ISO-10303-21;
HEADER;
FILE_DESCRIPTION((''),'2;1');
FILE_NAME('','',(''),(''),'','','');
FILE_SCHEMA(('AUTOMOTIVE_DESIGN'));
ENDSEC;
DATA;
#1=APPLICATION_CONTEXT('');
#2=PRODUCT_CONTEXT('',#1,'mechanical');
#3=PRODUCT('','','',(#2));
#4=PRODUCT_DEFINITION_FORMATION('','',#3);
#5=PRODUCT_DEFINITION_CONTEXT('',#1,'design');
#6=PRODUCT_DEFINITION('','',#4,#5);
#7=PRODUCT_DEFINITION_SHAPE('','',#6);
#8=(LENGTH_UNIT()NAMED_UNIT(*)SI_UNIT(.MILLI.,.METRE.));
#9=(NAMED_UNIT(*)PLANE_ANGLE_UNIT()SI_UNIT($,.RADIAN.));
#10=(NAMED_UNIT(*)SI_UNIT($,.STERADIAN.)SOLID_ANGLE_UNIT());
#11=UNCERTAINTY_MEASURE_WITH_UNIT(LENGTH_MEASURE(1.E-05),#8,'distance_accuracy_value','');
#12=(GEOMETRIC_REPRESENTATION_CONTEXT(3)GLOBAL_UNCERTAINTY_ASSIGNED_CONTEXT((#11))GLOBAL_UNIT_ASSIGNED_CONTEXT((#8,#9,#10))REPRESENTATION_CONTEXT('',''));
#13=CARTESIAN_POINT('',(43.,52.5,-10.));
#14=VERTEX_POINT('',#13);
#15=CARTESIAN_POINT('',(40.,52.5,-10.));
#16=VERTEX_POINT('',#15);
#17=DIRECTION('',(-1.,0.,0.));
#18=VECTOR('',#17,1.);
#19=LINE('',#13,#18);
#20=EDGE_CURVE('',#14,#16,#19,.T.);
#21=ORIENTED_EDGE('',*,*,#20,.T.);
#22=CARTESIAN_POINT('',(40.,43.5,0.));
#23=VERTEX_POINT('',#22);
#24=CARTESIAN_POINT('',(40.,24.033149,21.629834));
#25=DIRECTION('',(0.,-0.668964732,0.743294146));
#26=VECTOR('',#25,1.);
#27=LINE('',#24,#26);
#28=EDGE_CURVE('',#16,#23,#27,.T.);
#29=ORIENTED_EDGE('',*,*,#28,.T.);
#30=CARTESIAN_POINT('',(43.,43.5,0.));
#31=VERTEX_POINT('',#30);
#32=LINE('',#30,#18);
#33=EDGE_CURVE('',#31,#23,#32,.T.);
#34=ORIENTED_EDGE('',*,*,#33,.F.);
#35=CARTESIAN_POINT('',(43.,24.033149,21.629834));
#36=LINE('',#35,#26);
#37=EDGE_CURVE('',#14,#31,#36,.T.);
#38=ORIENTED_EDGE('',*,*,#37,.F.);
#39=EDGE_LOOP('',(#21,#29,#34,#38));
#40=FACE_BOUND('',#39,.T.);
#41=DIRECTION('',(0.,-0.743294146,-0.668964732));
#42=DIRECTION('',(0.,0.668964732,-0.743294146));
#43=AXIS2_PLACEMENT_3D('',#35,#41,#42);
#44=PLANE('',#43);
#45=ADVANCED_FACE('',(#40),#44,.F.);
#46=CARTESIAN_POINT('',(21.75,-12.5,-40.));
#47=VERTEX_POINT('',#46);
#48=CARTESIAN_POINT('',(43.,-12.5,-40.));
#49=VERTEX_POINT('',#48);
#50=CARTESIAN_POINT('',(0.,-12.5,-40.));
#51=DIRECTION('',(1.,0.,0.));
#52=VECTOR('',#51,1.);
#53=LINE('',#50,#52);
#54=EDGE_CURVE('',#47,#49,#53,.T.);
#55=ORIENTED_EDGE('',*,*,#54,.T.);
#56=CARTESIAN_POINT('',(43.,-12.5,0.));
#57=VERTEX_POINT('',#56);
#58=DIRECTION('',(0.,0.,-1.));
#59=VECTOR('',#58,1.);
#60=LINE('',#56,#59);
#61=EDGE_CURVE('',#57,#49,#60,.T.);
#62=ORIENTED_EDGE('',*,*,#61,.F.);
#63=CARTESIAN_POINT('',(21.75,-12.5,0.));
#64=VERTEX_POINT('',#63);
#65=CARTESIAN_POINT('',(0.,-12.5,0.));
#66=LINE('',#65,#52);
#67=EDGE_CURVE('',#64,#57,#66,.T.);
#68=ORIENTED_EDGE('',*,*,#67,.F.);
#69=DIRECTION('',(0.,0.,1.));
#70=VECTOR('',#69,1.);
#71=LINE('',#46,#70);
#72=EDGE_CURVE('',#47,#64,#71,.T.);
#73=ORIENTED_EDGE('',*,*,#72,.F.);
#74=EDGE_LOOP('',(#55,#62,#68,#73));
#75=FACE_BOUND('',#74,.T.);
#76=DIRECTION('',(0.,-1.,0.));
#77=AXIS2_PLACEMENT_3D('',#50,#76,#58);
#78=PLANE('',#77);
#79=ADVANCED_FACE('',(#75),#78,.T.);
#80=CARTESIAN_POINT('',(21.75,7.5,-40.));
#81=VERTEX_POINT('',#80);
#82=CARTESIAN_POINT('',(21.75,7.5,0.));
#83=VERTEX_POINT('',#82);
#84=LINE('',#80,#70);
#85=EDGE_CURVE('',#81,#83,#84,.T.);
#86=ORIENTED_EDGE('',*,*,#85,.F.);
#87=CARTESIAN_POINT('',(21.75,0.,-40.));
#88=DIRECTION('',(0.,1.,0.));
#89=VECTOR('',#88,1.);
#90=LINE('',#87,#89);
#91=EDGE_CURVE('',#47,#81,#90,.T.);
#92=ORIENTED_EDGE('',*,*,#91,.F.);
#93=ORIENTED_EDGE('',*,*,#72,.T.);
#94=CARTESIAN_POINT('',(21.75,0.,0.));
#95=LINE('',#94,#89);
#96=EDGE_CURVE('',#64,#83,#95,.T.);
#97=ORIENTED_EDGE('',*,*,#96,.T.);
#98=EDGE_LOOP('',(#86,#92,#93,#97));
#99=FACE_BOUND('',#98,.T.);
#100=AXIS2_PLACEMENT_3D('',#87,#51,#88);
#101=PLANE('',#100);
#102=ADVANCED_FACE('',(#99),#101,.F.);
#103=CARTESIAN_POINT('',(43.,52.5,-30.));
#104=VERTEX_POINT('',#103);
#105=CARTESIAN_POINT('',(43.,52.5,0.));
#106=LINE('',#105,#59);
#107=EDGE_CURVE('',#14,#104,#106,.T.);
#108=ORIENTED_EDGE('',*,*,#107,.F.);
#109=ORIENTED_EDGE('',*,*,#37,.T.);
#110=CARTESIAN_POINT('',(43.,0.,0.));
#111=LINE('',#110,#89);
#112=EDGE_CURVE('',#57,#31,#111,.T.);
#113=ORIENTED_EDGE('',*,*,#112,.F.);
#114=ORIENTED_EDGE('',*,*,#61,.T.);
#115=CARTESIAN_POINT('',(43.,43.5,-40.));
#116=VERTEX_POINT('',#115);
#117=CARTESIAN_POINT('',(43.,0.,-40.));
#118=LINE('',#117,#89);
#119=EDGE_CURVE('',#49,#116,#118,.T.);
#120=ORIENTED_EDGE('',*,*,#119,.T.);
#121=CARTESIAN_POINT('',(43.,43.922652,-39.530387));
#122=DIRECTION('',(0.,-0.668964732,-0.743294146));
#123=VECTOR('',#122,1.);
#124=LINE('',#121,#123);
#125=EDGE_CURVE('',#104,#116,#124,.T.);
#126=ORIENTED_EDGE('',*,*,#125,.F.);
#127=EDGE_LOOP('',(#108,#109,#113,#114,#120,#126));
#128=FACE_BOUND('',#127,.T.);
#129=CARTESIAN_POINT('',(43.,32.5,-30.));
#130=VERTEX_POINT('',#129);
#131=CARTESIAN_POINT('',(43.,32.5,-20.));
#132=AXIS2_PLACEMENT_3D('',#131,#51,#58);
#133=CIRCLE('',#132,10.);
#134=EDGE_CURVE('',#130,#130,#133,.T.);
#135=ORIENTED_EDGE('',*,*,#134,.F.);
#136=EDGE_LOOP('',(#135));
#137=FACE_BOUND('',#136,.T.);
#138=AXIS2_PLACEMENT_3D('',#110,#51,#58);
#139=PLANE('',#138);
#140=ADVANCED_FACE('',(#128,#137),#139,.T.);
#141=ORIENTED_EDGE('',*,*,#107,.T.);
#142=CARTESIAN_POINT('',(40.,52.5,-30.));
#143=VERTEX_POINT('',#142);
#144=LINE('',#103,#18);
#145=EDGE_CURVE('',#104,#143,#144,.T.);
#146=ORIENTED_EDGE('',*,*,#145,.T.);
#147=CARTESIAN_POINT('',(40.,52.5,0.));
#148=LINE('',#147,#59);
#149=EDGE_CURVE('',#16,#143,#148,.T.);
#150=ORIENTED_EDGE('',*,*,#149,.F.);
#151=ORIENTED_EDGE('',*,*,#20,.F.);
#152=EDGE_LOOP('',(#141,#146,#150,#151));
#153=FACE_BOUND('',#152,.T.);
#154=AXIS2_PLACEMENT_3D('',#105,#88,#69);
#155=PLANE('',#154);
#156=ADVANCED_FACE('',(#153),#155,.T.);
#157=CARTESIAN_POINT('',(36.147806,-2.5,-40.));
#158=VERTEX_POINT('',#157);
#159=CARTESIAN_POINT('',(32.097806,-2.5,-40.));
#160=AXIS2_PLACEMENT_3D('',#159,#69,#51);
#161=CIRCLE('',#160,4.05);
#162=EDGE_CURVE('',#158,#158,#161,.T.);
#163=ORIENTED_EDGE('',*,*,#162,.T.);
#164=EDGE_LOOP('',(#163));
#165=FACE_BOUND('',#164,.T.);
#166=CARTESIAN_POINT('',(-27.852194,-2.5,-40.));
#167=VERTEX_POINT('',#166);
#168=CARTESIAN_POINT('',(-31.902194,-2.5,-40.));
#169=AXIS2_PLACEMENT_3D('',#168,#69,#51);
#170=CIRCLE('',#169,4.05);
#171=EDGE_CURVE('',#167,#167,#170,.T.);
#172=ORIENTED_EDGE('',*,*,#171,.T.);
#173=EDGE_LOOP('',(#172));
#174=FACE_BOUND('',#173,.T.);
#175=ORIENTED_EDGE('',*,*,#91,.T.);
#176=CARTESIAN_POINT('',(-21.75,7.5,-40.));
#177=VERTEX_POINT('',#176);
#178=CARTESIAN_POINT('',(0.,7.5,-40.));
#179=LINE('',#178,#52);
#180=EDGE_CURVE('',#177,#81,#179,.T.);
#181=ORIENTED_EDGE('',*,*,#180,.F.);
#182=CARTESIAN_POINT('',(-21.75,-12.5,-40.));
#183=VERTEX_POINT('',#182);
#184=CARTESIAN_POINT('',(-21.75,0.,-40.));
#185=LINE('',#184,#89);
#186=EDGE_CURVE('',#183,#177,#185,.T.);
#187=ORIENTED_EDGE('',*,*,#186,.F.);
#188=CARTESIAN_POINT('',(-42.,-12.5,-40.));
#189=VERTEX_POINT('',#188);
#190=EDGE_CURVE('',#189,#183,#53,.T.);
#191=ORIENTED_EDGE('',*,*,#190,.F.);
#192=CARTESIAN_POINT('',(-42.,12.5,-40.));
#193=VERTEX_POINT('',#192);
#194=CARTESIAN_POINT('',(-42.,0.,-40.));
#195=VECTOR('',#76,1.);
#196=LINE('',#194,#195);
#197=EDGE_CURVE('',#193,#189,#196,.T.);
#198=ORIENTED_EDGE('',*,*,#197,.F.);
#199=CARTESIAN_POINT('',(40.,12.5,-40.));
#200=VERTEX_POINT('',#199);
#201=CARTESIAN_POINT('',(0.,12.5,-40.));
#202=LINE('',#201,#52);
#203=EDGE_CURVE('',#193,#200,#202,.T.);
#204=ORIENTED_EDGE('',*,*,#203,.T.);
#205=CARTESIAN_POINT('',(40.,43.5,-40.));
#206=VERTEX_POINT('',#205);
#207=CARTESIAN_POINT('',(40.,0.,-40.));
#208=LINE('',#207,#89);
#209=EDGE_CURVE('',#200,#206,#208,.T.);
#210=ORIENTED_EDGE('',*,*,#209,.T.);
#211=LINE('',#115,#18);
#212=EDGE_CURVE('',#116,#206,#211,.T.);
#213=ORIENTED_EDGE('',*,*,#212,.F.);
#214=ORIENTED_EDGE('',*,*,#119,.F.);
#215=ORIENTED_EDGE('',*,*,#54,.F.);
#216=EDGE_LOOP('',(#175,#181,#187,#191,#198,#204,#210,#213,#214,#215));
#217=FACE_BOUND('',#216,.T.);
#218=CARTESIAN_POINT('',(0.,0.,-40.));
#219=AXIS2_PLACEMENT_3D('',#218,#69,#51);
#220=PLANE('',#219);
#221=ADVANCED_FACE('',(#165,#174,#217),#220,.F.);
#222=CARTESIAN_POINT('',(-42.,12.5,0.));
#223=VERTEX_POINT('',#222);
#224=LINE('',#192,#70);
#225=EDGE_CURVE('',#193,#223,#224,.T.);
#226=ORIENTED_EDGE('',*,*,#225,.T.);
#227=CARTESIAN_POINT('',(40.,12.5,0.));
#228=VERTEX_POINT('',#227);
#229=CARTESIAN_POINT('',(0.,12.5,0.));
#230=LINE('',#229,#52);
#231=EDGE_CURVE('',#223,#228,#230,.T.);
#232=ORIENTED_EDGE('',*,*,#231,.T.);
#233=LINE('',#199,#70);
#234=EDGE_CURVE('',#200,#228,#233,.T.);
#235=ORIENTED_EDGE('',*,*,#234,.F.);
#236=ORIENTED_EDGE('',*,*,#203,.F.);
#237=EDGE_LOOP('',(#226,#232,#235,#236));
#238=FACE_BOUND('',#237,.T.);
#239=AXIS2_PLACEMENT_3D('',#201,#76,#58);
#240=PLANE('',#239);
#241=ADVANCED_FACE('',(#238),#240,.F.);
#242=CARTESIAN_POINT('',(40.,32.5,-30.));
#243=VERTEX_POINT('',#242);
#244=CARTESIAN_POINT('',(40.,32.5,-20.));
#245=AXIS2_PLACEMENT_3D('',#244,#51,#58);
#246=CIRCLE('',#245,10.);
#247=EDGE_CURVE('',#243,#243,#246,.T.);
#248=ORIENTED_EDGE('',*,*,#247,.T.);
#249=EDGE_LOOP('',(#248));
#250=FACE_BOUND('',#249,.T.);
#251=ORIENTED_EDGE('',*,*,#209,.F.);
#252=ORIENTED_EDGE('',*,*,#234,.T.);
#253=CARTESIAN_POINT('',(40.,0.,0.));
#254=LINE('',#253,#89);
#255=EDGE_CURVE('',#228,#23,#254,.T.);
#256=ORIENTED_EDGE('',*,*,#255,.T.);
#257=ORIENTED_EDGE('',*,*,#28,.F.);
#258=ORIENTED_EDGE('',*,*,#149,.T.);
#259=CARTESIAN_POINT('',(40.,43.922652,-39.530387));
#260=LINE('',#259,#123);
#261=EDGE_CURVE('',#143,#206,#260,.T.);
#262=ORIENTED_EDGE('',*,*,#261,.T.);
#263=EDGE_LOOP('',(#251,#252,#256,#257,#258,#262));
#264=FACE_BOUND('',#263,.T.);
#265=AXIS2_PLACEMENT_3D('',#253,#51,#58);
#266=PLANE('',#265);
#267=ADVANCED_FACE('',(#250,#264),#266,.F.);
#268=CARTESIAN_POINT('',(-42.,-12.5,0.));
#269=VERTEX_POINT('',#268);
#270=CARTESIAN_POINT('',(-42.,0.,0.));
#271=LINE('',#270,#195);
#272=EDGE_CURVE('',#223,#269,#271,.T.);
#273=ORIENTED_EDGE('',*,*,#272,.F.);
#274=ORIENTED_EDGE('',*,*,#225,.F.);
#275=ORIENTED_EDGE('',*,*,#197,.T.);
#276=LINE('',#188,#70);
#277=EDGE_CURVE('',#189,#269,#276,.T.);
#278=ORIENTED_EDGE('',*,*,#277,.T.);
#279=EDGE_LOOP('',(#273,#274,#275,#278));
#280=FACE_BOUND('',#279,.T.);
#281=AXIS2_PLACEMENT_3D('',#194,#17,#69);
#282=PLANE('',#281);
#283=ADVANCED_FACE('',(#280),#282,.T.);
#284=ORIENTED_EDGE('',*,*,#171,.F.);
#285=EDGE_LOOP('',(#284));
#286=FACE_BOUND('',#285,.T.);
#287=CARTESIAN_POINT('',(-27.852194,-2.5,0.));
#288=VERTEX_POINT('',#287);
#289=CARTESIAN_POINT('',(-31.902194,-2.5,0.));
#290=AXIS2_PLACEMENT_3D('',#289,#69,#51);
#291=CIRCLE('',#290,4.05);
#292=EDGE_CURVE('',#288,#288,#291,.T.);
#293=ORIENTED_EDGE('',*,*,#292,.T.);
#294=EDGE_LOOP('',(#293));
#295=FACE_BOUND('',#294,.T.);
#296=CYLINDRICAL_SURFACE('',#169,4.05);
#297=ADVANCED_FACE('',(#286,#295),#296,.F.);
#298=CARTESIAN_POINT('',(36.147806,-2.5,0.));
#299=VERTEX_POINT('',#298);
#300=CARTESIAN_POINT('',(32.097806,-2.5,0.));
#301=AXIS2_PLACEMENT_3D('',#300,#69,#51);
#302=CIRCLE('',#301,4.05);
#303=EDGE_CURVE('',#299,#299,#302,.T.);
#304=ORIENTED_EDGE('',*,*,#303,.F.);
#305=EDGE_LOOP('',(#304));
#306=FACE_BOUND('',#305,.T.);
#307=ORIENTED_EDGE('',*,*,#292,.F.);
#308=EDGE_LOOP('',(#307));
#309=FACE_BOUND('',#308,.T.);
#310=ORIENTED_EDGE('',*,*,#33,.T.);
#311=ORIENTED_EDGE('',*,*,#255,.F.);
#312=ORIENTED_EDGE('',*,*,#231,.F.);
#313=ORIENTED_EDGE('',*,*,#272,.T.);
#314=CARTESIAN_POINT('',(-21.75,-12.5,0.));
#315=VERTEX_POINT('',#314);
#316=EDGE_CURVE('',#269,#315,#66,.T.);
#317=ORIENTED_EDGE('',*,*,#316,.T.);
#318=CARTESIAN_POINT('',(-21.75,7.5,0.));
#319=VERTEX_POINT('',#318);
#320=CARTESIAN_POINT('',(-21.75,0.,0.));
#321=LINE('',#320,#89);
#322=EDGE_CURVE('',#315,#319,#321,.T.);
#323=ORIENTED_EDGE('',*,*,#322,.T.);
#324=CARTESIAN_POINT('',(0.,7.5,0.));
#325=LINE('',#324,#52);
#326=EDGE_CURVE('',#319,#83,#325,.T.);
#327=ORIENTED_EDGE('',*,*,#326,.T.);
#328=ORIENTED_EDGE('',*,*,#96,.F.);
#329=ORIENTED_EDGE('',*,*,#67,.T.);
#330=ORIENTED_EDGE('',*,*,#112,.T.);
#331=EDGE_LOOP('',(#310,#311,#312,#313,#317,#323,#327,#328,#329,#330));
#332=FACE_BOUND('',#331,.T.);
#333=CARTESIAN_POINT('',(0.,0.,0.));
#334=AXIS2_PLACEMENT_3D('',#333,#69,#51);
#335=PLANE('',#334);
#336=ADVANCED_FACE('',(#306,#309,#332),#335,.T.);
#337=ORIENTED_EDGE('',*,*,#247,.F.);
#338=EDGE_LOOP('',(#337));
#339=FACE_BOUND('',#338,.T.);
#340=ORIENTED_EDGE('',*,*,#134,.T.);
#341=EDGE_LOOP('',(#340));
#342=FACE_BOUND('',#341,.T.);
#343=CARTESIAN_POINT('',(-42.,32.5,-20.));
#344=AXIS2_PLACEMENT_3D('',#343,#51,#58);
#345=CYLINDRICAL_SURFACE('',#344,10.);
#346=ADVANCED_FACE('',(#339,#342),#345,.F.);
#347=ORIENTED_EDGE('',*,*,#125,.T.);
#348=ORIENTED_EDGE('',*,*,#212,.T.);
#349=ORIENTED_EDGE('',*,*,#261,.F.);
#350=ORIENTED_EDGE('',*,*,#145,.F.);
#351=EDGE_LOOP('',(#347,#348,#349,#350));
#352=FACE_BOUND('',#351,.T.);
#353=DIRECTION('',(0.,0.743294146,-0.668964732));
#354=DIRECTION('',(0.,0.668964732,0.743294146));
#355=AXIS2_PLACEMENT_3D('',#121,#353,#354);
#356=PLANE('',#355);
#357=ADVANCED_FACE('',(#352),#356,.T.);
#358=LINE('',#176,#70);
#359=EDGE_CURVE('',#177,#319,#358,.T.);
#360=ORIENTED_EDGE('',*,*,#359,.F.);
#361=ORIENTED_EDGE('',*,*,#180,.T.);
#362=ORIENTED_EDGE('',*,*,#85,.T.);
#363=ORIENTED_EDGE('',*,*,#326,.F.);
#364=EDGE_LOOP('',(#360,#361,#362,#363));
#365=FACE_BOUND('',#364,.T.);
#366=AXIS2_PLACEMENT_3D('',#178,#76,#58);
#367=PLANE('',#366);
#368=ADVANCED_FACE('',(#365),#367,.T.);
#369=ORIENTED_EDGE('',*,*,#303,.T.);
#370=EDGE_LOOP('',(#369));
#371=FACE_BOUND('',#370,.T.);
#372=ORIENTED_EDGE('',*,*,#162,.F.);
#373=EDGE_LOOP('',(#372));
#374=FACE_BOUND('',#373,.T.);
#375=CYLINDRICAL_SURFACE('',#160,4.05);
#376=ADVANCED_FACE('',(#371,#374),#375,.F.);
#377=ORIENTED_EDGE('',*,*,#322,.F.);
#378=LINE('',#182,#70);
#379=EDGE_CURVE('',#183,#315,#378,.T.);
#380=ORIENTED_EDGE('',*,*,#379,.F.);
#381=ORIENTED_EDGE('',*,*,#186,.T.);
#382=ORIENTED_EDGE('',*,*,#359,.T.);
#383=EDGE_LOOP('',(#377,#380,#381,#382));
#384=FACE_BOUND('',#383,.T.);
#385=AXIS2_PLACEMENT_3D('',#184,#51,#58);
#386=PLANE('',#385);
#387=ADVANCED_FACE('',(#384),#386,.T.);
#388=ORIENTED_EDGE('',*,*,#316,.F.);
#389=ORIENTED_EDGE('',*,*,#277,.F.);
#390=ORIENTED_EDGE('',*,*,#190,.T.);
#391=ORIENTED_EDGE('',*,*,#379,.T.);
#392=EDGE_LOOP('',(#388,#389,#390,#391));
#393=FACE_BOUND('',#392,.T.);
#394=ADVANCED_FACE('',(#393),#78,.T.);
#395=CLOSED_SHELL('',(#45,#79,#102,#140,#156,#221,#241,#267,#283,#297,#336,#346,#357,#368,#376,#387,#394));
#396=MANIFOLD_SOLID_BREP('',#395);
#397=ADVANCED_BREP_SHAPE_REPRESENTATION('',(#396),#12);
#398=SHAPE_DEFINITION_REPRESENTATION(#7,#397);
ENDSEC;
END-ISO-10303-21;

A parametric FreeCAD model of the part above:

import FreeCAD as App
import Part
import Sketcher

V = App.Vector
Q = App.Units.Quantity


def add_polygon(sketch, points):
    """Adds a closed chain of lines whose ends are joined by coincident constraints."""
    first, n = sketch.GeometryCount, len(points)
    for a, b in zip(points, points[1:] + points[:1]):
        sketch.addGeometry(Part.LineSegment(App.Vector(*a, 0), App.Vector(*b, 0)), False)
    for i in range(n):
        sketch.addConstraint(Sketcher.Constraint("Coincident", first + i, 2, first + (i + 1) % n, 1))

doc = App.newDocument("Part")
params = doc.addObject("Spreadsheet::Sheet", "Params")
for row, (alias, value) in enumerate([
    ("sketch1_diameter", "8.1 mm"),
    ("sketch1_width", "84 mm"),
    ("sketch1_height", "25 mm"),
    ("sketch1_height2", "20 mm"),
    ("sketch1_width2", "43.5 mm"),
    ("pad1_length", "40 mm"),
    ("sketch2_width", "56 mm"),
    ("sketch2_height", "20 mm"),
    ("sketch2_height2", "40 mm"),
    ("pad2_length", "3 mm"),
    ("sketch3_diameter", "20 mm"),
], start=1):
    params.set(f"A{row}", alias)
    params.set(f"B{row}", "=" + value)
    params.setAlias(f"B{row}", alias)

body = doc.addObject("PartDesign::Body", "Body")

# Sketch on XY plane
sketch1 = body.newObject("Sketcher::SketchObject", "Sketch")
sketch1.AttachmentSupport = (doc.getObject("XY_Plane"), [""])
sketch1.MapMode = "FlatFace"
add_polygon(sketch1, [(42, 12.5), (-42, 12.5), (-42, -12.5), (-21.8, -12.5), (-21.8, 7.5), (21.8, 7.5), (21.8, -12.5), (42, -12.5)])  # lines 0-7
sketch1.addGeometry(Part.Circle(V(-31.9, -2.5, 0), V(0, 0, 1), 4), False)  # 8
sketch1.addGeometry(Part.Circle(V(32.1, -2.5, 0), V(0, 0, 1), 4), False)  # 9
sketch1.addConstraint([
    Sketcher.Constraint("Horizontal", 0),
    Sketcher.Constraint("Vertical", 1),
    Sketcher.Constraint("Horizontal", 2),
    Sketcher.Constraint("Vertical", 3),
    Sketcher.Constraint("Horizontal", 4),
    Sketcher.Constraint("Vertical", 5),
    Sketcher.Constraint("Horizontal", 6),
    Sketcher.Constraint("Vertical", 7),
    Sketcher.Constraint("Equal", 8, 9),
    Sketcher.Constraint("Symmetric", 0, 2, 6, 2, -1, 1),
    Sketcher.Constraint("Symmetric", 2, 2, 5, 2, -2),
    Sketcher.Constraint("Horizontal", 8, 3, 9, 3),
    Sketcher.Constraint("Diameter", 8, Q("8.1 mm")),
    Sketcher.Constraint("DistanceX", 0, 2, 0, 1, Q("84 mm")),
    Sketcher.Constraint("DistanceY", 1, 2, 1, 1, Q("25 mm")),
    Sketcher.Constraint("DistanceY", 3, 1, 3, 2, Q("20 mm")),
    Sketcher.Constraint("DistanceX", 4, 1, 4, 2, Q("43.5 mm")),
    Sketcher.Constraint("DistanceX", 8, 3, 9, 3, Q("64 mm")),
    Sketcher.Constraint("DistanceY", 8, 3, 0, 2, Q("15 mm")),
    Sketcher.Constraint("DistanceX", 8, 3, -1, 1, Q("31.902194 mm")),
])
sketch1.setExpression("Constraints[20]", "Params.sketch1_diameter")
sketch1.setExpression("Constraints[21]", "Params.sketch1_width")
sketch1.setExpression("Constraints[22]", "Params.sketch1_height")
sketch1.setExpression("Constraints[23]", "Params.sketch1_height2")
sketch1.setExpression("Constraints[24]", "Params.sketch1_width2")
pad1 = body.newObject("PartDesign::Pad", "Pad")
pad1.Profile = sketch1
pad1.setExpression("Length", "Params.pad1_length")
pad1.Reversed = True

# Sketch on YZ plane
sketch2 = body.newObject("Sketcher::SketchObject", "Sketch001")
sketch2.AttachmentSupport = (doc.getObject("YZ_Plane"), [""])
sketch2.MapMode = "FlatFace"
sketch2.AttachmentOffset = App.Placement(V(0, 0, 40), App.Rotation())
add_polygon(sketch2, [(44, -40), (52, -30), (52, -10), (44, 0), (-12, 0), (-12, -40)])  # lines 0-5
sketch2.addConstraint([
    Sketcher.Constraint("Vertical", 1),
    Sketcher.Constraint("Horizontal", 3),
    Sketcher.Constraint("Vertical", 4),
    Sketcher.Constraint("Horizontal", 5),
    Sketcher.Constraint("PointOnObject", 2, 2, -1),
    Sketcher.Constraint("Vertical", 2, 2, 5, 2),
    Sketcher.Constraint("Equal", 0, 2),
    Sketcher.Constraint("DistanceX", 3, 2, 3, 1, Q("56 mm")),
    Sketcher.Constraint("DistanceY", 1, 1, 1, 2, Q("20 mm")),
    Sketcher.Constraint("DistanceY", 4, 2, 4, 1, Q("40 mm")),
    Sketcher.Constraint("DistanceX", 2, 2, 1, 2, Q("9 mm")),
    Sketcher.Constraint("DistanceX", -1, 1, 0, 2, Q("52.5 mm")),
])
sketch2.setExpression("Constraints[13]", "Params.sketch2_width")
sketch2.setExpression("Constraints[14]", "Params.sketch2_height")
sketch2.setExpression("Constraints[15]", "Params.sketch2_height2")
pad2 = body.newObject("PartDesign::Pad", "Pad001")
pad2.Profile = sketch2
pad2.setExpression("Length", "Params.pad2_length")

# Sketch on YZ plane
sketch3 = body.newObject("Sketcher::SketchObject", "Sketch002")
sketch3.AttachmentSupport = (doc.getObject("YZ_Plane"), [""])
sketch3.MapMode = "FlatFace"
sketch3.AttachmentOffset = App.Placement(V(0, 0, 43), App.Rotation())
sketch3.addGeometry(Part.Circle(V(32, -20, 0), V(0, 0, 1), 10), False)
sketch3.addConstraint([
    Sketcher.Constraint("Diameter", 0, Q("20 mm")),
    Sketcher.Constraint("DistanceY", 0, 3, -1, 1, Q("20 mm")),
    Sketcher.Constraint("DistanceX", -1, 1, 0, 3, Q("32.5 mm")),
])
sketch3.setExpression("Constraints[0]", "Params.sketch3_diameter")
pocket1 = body.newObject("PartDesign::Pocket", "Pocket")
pocket1.Profile = sketch3
pocket1.Type = "ThroughAll"

doc.recompute()
